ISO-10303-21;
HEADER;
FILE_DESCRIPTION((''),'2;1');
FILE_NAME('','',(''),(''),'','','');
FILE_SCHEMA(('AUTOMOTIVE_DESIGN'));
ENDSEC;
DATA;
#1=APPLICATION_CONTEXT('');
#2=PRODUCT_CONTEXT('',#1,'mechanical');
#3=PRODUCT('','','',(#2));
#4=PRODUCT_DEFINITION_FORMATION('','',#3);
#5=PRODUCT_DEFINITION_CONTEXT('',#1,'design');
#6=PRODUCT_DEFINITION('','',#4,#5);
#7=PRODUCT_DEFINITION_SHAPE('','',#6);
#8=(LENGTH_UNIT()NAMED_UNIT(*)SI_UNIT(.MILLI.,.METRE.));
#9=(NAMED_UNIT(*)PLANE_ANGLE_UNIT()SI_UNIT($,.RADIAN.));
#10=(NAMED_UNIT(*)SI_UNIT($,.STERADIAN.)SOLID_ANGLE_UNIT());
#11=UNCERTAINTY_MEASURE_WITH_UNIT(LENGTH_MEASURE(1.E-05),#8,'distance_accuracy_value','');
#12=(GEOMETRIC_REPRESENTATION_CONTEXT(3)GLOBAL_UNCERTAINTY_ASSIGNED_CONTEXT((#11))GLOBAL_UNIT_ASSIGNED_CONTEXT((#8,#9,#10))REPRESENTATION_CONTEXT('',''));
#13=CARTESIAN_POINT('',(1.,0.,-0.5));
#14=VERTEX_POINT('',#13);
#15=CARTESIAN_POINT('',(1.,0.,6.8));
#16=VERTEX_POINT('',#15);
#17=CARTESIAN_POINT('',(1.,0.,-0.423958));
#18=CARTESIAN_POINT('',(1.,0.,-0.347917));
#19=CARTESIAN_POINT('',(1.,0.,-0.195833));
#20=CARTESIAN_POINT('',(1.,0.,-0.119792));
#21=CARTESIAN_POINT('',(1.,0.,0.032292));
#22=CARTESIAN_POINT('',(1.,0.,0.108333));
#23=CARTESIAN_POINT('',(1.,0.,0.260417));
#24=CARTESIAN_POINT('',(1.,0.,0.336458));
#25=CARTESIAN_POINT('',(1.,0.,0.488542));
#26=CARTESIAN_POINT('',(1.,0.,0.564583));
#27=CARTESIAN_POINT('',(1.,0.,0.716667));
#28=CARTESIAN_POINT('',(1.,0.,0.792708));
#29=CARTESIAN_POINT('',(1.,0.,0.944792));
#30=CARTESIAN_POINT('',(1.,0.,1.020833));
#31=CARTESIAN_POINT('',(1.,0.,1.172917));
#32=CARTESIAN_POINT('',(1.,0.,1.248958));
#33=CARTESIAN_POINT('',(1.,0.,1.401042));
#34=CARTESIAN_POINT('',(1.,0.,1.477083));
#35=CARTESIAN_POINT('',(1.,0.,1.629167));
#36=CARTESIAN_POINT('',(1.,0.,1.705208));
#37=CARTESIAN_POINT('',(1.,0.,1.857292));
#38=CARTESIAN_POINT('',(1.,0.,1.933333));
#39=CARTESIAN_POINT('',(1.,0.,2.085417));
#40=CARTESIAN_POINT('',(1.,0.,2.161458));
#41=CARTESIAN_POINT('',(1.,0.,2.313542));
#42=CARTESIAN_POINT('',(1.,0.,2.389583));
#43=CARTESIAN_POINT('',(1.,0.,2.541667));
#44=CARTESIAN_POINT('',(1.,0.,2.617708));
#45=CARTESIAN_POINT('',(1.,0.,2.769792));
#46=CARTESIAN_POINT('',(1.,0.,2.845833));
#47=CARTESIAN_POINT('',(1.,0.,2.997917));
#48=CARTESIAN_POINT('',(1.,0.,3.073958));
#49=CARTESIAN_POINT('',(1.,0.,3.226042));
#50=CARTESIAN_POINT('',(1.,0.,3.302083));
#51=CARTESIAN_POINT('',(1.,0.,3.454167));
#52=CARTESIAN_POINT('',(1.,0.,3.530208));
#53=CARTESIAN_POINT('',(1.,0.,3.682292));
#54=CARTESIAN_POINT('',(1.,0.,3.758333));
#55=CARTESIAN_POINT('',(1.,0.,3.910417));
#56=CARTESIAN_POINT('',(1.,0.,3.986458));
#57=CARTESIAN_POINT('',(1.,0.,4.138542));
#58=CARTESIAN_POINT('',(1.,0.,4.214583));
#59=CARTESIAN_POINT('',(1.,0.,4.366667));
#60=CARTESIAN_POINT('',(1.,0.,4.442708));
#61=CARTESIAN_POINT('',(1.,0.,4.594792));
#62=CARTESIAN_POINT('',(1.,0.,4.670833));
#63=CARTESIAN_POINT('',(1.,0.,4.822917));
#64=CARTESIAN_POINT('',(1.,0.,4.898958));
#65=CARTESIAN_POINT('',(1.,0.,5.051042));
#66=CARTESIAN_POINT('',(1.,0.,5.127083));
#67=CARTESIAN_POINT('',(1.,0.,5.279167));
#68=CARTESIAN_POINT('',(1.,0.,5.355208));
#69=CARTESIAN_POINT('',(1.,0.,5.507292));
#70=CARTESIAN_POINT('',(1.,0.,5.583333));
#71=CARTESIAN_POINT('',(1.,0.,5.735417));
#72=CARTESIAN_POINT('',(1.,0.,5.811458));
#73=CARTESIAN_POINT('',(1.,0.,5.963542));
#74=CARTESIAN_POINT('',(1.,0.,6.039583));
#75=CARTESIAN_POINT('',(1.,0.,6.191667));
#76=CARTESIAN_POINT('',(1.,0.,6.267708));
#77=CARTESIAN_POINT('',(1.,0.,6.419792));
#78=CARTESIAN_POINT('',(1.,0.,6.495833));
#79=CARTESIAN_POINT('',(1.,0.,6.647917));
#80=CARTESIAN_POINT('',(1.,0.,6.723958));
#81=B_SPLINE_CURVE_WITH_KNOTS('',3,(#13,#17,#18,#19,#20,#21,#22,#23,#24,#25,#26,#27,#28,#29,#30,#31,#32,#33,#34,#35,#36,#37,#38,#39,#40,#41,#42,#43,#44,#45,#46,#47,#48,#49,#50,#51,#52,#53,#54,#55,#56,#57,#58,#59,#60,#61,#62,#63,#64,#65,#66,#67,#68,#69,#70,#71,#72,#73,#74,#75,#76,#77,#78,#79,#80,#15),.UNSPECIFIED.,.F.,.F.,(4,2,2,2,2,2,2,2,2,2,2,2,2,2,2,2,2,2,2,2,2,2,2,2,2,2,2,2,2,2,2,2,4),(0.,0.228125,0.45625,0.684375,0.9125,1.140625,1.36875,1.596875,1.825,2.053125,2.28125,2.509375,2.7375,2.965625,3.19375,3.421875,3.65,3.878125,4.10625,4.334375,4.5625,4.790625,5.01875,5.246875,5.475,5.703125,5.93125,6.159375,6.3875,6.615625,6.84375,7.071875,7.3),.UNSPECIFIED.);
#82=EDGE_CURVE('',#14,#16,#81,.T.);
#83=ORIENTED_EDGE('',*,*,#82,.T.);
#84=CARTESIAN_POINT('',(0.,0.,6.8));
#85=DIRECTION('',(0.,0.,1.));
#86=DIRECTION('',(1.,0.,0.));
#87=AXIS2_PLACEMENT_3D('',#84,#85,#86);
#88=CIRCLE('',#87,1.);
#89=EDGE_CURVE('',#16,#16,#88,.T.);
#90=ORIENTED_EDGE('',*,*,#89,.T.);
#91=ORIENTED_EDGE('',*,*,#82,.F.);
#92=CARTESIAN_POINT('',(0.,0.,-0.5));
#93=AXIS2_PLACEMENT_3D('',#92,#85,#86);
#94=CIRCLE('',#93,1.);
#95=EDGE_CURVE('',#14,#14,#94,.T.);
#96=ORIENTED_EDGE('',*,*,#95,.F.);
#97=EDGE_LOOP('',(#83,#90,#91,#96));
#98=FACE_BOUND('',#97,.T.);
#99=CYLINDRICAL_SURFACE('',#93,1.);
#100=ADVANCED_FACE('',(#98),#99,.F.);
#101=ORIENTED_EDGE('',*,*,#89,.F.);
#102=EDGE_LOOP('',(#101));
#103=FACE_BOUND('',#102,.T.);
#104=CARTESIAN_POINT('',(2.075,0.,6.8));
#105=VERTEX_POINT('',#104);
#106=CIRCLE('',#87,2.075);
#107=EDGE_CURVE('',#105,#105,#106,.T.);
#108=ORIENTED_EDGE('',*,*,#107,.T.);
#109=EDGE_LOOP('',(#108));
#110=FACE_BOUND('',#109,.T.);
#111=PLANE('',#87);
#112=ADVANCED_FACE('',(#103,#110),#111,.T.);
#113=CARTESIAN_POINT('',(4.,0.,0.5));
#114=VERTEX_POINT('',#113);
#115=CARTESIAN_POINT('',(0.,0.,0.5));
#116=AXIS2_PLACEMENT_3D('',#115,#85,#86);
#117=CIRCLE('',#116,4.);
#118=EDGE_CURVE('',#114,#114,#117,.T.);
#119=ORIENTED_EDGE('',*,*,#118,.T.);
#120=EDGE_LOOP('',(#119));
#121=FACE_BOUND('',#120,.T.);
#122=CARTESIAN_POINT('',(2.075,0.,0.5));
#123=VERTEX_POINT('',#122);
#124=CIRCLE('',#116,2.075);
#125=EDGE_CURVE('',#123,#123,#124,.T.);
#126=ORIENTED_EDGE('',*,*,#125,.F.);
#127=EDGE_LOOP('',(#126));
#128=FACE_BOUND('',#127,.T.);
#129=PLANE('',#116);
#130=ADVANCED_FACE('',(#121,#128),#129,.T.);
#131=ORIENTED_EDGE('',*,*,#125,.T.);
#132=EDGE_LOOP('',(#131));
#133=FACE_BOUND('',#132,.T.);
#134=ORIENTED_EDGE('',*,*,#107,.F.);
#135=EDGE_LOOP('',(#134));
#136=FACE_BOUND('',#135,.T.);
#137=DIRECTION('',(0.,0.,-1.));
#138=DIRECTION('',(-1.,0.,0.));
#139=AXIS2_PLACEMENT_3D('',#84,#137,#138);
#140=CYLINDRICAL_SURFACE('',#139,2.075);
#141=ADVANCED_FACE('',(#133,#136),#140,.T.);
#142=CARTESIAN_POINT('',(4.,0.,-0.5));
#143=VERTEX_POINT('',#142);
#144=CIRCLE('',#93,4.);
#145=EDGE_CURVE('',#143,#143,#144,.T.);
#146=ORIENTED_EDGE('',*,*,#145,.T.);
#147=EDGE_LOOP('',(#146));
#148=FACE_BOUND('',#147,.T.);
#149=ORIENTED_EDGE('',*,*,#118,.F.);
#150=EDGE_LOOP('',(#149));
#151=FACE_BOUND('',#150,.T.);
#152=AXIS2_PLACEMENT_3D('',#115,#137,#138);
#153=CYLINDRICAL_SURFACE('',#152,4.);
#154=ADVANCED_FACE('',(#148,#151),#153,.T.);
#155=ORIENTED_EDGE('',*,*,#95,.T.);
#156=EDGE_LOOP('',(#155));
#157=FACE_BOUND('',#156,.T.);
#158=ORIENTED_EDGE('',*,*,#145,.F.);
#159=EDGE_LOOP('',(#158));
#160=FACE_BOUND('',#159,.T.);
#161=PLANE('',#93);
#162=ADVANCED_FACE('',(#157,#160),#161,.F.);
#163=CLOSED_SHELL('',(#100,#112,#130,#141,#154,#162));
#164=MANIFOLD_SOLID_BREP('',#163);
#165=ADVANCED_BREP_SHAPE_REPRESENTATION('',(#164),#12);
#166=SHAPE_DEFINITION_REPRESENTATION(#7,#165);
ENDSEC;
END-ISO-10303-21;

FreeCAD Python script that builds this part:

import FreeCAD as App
import Part
import Sketcher
from FreeCAD import Vector

doc = App.newDocument("Part")
body = doc.addObject("PartDesign::Body", "Body")

# Sketch on XY plane
sketch1 = doc.addObject("Sketcher::SketchObject", "Sketch")
body.addObject(sketch1)
sketch1.AttachmentSupport = (doc.XY_Plane, [""])
sketch1.MapMode = "FlatFace"
sketch1.addGeometry(Part.Circle(Vector(0, 0, 0), Vector(0, 0, 1), 4), False)
sketch1.addConstraint(Sketcher.Constraint("Coincident", 0, 3, -1, 1))
sketch1.addConstraint(Sketcher.Constraint("Diameter", 0, 8.0))
pad1 = doc.addObject("PartDesign::Pad", "Pad")
body.addObject(pad1)
pad1.Profile = sketch1
pad1.Length = 1
pad1.Midplane = True

# Sketch on XY plane
sketch2 = doc.addObject("Sketcher::SketchObject", "Sketch001")
body.addObject(sketch2)
sketch2.AttachmentSupport = (doc.XY_Plane, [""])
sketch2.MapMode = "FlatFace"
sketch2.AttachmentOffset = App.Placement(Vector(0, 0, 0.5), App.Rotation())
sketch2.addGeometry(Part.Circle(Vector(0, 0, 0), Vector(0, 0, 1), 2.075), False)
sketch2.addConstraint(Sketcher.Constraint("Coincident", 0, 3, -1, 1))
sketch2.addConstraint(Sketcher.Constraint("Diameter", 0, 4.15))
pad2 = doc.addObject("PartDesign::Pad", "Pad001")
body.addObject(pad2)
pad2.Profile = sketch2
pad2.Length = 6.3

# Sketch on XY plane
sketch3 = doc.addObject("Sketcher::SketchObject", "Sketch002")
body.addObject(sketch3)
sketch3.AttachmentSupport = (doc.XY_Plane, [""])
sketch3.MapMode = "FlatFace"
sketch3.AttachmentOffset = App.Placement(Vector(0, 0, 6.8), App.Rotation())
sketch3.addGeometry(Part.Circle(Vector(0, 0, 0), Vector(0, 0, 1), 1), False)
sketch3.addConstraint(Sketcher.Constraint("Coincident", 0, 3, -1, 1))
sketch3.addConstraint(Sketcher.Constraint("Diameter", 0, 2.0))
pocket1 = doc.addObject("PartDesign::Pocket", "Pocket")
body.addObject(pocket1)
pocket1.Profile = sketch3
pocket1.Type = "ThroughAll"

doc.recompute()
